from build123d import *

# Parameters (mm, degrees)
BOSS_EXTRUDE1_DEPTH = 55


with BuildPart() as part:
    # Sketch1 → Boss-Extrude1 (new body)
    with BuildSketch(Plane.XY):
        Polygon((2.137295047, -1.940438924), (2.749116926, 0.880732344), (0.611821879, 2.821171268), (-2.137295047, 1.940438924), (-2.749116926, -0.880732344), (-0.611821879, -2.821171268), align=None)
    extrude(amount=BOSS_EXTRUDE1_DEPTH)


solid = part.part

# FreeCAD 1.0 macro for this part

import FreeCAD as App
import Part
import Sketcher

doc = App.newDocument("Part")
body = doc.addObject("PartDesign::Body", "Body")

sketch1 = doc.addObject("Sketcher::SketchObject", "Sketch")
body.addObject(sketch1)
sketch1.AttachmentSupport = (doc.XY_Plane, [""])
sketch1.MapMode = "FlatFace"
sketch1.addGeometry([
    Part.LineSegment(App.Vector(2.137295, -1.940439, 0), App.Vector(2.749117, 0.880732, 0)),
    Part.LineSegment(App.Vector(2.749117, 0.880732, 0), App.Vector(0.611822, 2.821171, 0)),
    Part.LineSegment(App.Vector(0.611822, 2.821171, 0), App.Vector(-2.137295, 1.940439, 0)),
    Part.LineSegment(App.Vector(-2.137295, 1.940439, 0), App.Vector(-2.749117, -0.880732, 0)),
    Part.LineSegment(App.Vector(-2.749117, -0.880732, 0), App.Vector(-0.611822, -2.821171, 0)),
    Part.LineSegment(App.Vector(-0.611822, -2.821171, 0), App.Vector(2.137295, -1.940439, 0)),
], False)
sketch1.addConstraint([
    Sketcher.Constraint("Coincident", 0, 2, 1, 1),
    Sketcher.Constraint("Coincident", 1, 2, 2, 1),
    Sketcher.Constraint("Coincident", 2, 2, 3, 1),
    Sketcher.Constraint("Coincident", 3, 2, 4, 1),
    Sketcher.Constraint("Coincident", 4, 2, 5, 1),
    Sketcher.Constraint("Coincident", 5, 2, 0, 1),
    Sketcher.Constraint("Symmetric", 0, 2, 3, 2, -1, 1),
    Sketcher.Constraint("Symmetric", 1, 2, 4, 2, -1, 1),
    Sketcher.Constraint("Symmetric", 2, 2, 5, 2, -1, 1),
    Sketcher.Constraint("Equal", 0, 1),
    Sketcher.Constraint("Equal", 1, 2),
    Sketcher.Constraint("Distance", 0, 2.886751),
    Sketcher.Constraint("DistanceX", -1, 1, 1, 2, 0.611822),
    Sketcher.Constraint("DistanceY", -1, 1, 1, 2, 2.821171),
    Sketcher.Constraint("DistanceY", -1, 1, 2, 2, 1.940439),
])
pad1 = doc.addObject("PartDesign::Pad", "Pad")
body.addObject(pad1)
pad1.Profile = sketch1
pad1.Length = 55

doc.recompute()
